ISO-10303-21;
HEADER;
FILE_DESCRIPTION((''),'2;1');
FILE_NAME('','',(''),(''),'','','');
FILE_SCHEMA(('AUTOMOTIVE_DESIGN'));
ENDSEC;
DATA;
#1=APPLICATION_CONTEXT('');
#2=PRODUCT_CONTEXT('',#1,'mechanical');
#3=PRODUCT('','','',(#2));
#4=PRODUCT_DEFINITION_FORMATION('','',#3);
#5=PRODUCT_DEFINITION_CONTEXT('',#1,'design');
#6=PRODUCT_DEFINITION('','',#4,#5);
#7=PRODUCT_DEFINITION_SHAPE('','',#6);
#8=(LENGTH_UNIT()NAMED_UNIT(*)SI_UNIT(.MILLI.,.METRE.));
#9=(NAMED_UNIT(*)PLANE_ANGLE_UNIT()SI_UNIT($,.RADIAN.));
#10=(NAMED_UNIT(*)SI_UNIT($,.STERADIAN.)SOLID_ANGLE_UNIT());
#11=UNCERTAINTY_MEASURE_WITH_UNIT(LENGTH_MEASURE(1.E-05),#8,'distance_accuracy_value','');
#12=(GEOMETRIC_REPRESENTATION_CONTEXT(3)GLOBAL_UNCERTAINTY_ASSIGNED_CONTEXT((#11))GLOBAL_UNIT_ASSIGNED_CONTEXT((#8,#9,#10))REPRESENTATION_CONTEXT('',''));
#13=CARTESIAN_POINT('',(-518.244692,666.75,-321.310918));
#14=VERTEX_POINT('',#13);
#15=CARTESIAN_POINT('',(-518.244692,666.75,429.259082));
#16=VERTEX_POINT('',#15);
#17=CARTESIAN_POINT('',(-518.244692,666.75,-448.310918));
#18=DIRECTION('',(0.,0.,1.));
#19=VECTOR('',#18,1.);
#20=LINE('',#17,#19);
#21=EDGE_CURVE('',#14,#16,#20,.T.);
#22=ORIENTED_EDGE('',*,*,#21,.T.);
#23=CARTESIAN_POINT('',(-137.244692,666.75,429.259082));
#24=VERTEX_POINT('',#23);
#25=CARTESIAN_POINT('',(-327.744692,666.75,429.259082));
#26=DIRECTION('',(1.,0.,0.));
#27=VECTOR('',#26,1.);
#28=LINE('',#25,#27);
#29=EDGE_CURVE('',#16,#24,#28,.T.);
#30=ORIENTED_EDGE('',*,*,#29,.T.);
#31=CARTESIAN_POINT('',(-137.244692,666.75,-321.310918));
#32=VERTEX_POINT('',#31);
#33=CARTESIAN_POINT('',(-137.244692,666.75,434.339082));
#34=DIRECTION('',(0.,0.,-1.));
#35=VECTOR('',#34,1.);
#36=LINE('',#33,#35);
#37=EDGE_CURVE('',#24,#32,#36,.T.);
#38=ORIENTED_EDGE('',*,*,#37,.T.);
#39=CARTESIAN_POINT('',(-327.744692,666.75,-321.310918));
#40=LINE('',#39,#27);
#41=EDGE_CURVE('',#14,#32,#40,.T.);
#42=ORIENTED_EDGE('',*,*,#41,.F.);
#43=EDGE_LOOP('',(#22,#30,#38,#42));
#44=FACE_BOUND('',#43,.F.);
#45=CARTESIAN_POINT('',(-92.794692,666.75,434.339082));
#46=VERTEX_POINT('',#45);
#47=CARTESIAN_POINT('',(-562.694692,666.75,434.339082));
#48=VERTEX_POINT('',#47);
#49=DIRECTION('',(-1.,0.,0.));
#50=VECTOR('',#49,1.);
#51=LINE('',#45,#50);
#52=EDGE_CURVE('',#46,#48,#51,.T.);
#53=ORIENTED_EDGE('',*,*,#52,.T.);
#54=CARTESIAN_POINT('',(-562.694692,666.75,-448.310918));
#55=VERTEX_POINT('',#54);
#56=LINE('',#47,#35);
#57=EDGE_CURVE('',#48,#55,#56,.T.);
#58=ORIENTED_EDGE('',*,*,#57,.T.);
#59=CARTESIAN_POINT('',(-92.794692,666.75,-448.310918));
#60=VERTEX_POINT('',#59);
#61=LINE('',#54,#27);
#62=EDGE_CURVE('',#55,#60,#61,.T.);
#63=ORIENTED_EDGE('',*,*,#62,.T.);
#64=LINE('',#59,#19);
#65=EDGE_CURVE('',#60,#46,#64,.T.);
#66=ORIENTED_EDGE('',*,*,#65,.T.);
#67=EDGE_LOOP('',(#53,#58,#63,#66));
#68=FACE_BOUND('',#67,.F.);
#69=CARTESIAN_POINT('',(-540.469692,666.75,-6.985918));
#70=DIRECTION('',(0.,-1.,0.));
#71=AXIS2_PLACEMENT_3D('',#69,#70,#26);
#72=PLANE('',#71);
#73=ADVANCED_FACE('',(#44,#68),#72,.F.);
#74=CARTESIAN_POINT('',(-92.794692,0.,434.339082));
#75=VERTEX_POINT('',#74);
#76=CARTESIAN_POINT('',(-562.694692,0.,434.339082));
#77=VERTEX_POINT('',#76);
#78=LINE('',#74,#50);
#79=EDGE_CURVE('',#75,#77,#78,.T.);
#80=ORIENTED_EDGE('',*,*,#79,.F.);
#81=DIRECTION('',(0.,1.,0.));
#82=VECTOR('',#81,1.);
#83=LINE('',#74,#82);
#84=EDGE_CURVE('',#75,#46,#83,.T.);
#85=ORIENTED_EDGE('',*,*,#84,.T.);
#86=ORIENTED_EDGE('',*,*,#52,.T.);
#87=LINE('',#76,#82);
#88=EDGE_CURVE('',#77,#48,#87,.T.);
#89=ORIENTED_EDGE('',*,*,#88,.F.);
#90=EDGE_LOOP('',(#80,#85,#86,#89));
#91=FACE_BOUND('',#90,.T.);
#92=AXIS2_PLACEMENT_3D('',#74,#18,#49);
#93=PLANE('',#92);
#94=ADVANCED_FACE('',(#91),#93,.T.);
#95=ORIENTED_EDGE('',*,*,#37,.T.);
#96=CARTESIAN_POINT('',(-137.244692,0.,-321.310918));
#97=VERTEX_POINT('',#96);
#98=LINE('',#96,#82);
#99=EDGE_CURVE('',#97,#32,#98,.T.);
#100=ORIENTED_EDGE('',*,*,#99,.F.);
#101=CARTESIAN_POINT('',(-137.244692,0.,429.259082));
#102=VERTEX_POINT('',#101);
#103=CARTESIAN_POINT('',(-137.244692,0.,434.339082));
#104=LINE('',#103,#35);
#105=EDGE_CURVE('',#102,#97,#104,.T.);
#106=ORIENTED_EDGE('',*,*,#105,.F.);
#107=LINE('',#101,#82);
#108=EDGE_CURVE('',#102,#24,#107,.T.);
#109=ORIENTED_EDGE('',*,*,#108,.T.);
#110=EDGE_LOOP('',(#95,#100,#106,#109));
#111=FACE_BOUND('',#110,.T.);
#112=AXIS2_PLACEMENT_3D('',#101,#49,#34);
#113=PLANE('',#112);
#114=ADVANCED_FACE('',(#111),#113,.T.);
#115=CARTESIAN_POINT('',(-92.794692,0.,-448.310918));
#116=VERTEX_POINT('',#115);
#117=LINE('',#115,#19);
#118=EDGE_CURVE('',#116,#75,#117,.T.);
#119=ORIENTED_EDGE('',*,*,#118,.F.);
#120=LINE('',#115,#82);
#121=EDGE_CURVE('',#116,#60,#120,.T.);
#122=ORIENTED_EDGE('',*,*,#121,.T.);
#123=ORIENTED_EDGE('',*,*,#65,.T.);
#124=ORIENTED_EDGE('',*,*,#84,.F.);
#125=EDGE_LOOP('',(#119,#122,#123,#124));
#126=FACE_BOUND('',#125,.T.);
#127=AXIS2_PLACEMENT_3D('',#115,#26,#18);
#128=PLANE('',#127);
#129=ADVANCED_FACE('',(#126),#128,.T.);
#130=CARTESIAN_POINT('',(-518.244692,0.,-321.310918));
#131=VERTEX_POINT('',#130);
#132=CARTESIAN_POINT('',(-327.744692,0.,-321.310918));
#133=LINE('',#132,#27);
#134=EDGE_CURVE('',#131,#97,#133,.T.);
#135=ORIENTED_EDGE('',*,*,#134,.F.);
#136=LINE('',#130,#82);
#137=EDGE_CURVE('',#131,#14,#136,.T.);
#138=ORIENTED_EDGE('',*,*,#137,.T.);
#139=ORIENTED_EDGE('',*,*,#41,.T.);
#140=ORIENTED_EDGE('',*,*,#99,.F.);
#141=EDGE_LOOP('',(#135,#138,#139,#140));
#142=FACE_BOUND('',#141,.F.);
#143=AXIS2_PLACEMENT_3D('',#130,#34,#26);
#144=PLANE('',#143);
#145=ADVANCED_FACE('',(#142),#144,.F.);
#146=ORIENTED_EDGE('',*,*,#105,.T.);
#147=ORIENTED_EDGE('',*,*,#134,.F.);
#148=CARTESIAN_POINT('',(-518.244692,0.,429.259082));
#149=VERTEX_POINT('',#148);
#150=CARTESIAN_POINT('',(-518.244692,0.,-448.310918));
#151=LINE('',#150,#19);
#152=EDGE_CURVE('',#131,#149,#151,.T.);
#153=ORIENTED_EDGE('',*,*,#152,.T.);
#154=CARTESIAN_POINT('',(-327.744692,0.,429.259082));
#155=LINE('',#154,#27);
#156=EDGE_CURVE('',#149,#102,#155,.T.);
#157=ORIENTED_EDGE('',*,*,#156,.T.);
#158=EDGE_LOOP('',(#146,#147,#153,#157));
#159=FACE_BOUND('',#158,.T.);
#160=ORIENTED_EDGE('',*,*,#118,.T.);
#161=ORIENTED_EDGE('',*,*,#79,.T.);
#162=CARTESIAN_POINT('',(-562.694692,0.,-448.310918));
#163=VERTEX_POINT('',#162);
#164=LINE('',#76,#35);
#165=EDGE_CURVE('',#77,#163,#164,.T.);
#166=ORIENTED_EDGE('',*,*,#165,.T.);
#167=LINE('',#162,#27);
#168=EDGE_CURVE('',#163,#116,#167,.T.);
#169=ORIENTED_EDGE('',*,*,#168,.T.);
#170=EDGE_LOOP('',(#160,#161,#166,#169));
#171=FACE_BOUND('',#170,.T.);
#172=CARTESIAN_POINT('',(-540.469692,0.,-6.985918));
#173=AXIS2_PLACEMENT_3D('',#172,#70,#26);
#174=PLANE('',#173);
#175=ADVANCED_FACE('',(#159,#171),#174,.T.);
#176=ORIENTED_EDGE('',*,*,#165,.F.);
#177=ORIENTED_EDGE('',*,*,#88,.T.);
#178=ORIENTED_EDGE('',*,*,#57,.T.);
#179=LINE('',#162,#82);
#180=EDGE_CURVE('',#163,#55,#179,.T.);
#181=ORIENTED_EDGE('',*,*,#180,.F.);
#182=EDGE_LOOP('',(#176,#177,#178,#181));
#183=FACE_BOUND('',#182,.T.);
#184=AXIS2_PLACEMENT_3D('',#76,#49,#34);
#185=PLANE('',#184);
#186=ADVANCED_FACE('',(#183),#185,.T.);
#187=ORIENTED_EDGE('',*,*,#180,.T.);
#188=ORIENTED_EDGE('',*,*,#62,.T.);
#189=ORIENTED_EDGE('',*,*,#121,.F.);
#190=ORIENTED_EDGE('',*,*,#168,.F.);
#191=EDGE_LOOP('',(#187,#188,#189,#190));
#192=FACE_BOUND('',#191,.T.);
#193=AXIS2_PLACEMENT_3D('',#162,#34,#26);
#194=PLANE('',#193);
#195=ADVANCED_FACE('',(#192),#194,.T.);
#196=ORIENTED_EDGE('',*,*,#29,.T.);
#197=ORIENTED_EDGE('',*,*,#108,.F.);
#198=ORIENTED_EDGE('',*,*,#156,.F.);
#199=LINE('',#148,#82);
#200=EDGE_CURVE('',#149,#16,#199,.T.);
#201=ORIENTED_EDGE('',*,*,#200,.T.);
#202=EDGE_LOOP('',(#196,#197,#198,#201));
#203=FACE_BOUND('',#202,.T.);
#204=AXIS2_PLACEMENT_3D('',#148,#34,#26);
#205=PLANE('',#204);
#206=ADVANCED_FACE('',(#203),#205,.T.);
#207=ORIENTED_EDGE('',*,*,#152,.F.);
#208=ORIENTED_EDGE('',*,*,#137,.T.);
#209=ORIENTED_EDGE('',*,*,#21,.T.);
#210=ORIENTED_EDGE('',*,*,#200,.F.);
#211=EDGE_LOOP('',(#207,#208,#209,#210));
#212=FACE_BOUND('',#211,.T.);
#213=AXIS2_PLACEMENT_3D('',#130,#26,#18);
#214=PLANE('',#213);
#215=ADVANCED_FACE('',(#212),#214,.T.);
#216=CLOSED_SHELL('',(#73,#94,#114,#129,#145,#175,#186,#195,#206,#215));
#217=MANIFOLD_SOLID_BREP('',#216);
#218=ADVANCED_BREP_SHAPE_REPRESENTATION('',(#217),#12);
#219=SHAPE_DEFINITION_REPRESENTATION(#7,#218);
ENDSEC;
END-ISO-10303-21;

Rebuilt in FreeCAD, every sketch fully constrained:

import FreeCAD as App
import Part
import Sketcher
Q = App.Units.Quantity

doc = App.newDocument("Part")
params = doc.addObject("Spreadsheet::Sheet", "Params")
for row, (alias, value) in enumerate([
    ("sketch1_width", "15 in"),
    ("sketch1_width2", "18.5 in"),
    ("sketch1_height", "34.75 in"),
    ("sketch1_height2", "29.55 in"),
    ("pad1_length", "26.25 in"),
], start=1):
    params.set(f"A{row}", alias)
    params.set(f"B{row}", "=" + value)
    params.setAlias(f"B{row}", alias)

body = doc.addObject("PartDesign::Body", "Body")

sketch1 = body.newObject("Sketcher::SketchObject", "Sketch")
sketch1.AttachmentSupport = (doc.getObject("XZ_Plane"), [""])
sketch1.MapMode = "FlatFace"
sketch1.addGeometry([
    Part.LineSegment(App.Vector(-563, 434, 0), App.Vector(-563, -448, 0)),
    Part.LineSegment(App.Vector(-563, -448, 0), App.Vector(-93, -448, 0)),
    Part.LineSegment(App.Vector(-93, -448, 0), App.Vector(-93, 434, 0)),
    Part.LineSegment(App.Vector(-93, 434, 0), App.Vector(-563, 434, 0)),
    Part.LineSegment(App.Vector(-137, 429, 0), App.Vector(-137, -321, 0)),
    Part.LineSegment(App.Vector(-137, -321, 0), App.Vector(-518, -321, 0)),
    Part.LineSegment(App.Vector(-518, -321, 0), App.Vector(-518, 429, 0)),
    Part.LineSegment(App.Vector(-518, 429, 0), App.Vector(-137, 429, 0)),
], False)
sketch1.addConstraint([
    Sketcher.Constraint("Coincident", 0, 2, 1, 1),
    Sketcher.Constraint("Coincident", 1, 2, 2, 1),
    Sketcher.Constraint("Coincident", 2, 2, 3, 1),
    Sketcher.Constraint("Coincident", 3, 2, 0, 1),
    Sketcher.Constraint("Coincident", 4, 2, 5, 1),
    Sketcher.Constraint("Coincident", 5, 2, 6, 1),
    Sketcher.Constraint("Coincident", 6, 2, 7, 1),
    Sketcher.Constraint("Coincident", 7, 2, 4, 1),
    Sketcher.Constraint("Vertical", 0),
    Sketcher.Constraint("Horizontal", 1),
    Sketcher.Constraint("Vertical", 2),
    Sketcher.Constraint("Horizontal", 3),
    Sketcher.Constraint("Vertical", 4),
    Sketcher.Constraint("Horizontal", 5),
    Sketcher.Constraint("Vertical", 6),
    Sketcher.Constraint("Horizontal", 7),
    Sketcher.Constraint("DistanceX", 5, 2, 5, 1, Q("15 in")),
    Sketcher.Constraint("DistanceX", 1, 1, 1, 2, Q("18.5 in")),
    Sketcher.Constraint("DistanceY", 1, 2, 4, 2, Q("5 in")),
    Sketcher.Constraint("DistanceY", 0, 2, 0, 1, Q("34.75 in")),
    Sketcher.Constraint("DistanceY", 4, 2, 4, 1, Q("29.55 in")),
    Sketcher.Constraint("DistanceX", 4, 2, 1, 2, Q("1.75 in")),
    Sketcher.Constraint("DistanceX", 0, 2, -1, 1, Q("562.694692 mm")),
    Sketcher.Constraint("DistanceY", 0, 2, -1, 1, Q("448.310918 mm")),
])
sketch1.setExpression("Constraints[16]", "Params.sketch1_width")
sketch1.setExpression("Constraints[17]", "Params.sketch1_width2")
sketch1.setExpression("Constraints[19]", "Params.sketch1_height")
sketch1.setExpression("Constraints[20]", "Params.sketch1_height2")
pad1 = body.newObject("PartDesign::Pad", "Pad")
pad1.Profile = sketch1
pad1.setExpression("Length", "Params.pad1_length")
pad1.Reversed = True

doc.recompute()
